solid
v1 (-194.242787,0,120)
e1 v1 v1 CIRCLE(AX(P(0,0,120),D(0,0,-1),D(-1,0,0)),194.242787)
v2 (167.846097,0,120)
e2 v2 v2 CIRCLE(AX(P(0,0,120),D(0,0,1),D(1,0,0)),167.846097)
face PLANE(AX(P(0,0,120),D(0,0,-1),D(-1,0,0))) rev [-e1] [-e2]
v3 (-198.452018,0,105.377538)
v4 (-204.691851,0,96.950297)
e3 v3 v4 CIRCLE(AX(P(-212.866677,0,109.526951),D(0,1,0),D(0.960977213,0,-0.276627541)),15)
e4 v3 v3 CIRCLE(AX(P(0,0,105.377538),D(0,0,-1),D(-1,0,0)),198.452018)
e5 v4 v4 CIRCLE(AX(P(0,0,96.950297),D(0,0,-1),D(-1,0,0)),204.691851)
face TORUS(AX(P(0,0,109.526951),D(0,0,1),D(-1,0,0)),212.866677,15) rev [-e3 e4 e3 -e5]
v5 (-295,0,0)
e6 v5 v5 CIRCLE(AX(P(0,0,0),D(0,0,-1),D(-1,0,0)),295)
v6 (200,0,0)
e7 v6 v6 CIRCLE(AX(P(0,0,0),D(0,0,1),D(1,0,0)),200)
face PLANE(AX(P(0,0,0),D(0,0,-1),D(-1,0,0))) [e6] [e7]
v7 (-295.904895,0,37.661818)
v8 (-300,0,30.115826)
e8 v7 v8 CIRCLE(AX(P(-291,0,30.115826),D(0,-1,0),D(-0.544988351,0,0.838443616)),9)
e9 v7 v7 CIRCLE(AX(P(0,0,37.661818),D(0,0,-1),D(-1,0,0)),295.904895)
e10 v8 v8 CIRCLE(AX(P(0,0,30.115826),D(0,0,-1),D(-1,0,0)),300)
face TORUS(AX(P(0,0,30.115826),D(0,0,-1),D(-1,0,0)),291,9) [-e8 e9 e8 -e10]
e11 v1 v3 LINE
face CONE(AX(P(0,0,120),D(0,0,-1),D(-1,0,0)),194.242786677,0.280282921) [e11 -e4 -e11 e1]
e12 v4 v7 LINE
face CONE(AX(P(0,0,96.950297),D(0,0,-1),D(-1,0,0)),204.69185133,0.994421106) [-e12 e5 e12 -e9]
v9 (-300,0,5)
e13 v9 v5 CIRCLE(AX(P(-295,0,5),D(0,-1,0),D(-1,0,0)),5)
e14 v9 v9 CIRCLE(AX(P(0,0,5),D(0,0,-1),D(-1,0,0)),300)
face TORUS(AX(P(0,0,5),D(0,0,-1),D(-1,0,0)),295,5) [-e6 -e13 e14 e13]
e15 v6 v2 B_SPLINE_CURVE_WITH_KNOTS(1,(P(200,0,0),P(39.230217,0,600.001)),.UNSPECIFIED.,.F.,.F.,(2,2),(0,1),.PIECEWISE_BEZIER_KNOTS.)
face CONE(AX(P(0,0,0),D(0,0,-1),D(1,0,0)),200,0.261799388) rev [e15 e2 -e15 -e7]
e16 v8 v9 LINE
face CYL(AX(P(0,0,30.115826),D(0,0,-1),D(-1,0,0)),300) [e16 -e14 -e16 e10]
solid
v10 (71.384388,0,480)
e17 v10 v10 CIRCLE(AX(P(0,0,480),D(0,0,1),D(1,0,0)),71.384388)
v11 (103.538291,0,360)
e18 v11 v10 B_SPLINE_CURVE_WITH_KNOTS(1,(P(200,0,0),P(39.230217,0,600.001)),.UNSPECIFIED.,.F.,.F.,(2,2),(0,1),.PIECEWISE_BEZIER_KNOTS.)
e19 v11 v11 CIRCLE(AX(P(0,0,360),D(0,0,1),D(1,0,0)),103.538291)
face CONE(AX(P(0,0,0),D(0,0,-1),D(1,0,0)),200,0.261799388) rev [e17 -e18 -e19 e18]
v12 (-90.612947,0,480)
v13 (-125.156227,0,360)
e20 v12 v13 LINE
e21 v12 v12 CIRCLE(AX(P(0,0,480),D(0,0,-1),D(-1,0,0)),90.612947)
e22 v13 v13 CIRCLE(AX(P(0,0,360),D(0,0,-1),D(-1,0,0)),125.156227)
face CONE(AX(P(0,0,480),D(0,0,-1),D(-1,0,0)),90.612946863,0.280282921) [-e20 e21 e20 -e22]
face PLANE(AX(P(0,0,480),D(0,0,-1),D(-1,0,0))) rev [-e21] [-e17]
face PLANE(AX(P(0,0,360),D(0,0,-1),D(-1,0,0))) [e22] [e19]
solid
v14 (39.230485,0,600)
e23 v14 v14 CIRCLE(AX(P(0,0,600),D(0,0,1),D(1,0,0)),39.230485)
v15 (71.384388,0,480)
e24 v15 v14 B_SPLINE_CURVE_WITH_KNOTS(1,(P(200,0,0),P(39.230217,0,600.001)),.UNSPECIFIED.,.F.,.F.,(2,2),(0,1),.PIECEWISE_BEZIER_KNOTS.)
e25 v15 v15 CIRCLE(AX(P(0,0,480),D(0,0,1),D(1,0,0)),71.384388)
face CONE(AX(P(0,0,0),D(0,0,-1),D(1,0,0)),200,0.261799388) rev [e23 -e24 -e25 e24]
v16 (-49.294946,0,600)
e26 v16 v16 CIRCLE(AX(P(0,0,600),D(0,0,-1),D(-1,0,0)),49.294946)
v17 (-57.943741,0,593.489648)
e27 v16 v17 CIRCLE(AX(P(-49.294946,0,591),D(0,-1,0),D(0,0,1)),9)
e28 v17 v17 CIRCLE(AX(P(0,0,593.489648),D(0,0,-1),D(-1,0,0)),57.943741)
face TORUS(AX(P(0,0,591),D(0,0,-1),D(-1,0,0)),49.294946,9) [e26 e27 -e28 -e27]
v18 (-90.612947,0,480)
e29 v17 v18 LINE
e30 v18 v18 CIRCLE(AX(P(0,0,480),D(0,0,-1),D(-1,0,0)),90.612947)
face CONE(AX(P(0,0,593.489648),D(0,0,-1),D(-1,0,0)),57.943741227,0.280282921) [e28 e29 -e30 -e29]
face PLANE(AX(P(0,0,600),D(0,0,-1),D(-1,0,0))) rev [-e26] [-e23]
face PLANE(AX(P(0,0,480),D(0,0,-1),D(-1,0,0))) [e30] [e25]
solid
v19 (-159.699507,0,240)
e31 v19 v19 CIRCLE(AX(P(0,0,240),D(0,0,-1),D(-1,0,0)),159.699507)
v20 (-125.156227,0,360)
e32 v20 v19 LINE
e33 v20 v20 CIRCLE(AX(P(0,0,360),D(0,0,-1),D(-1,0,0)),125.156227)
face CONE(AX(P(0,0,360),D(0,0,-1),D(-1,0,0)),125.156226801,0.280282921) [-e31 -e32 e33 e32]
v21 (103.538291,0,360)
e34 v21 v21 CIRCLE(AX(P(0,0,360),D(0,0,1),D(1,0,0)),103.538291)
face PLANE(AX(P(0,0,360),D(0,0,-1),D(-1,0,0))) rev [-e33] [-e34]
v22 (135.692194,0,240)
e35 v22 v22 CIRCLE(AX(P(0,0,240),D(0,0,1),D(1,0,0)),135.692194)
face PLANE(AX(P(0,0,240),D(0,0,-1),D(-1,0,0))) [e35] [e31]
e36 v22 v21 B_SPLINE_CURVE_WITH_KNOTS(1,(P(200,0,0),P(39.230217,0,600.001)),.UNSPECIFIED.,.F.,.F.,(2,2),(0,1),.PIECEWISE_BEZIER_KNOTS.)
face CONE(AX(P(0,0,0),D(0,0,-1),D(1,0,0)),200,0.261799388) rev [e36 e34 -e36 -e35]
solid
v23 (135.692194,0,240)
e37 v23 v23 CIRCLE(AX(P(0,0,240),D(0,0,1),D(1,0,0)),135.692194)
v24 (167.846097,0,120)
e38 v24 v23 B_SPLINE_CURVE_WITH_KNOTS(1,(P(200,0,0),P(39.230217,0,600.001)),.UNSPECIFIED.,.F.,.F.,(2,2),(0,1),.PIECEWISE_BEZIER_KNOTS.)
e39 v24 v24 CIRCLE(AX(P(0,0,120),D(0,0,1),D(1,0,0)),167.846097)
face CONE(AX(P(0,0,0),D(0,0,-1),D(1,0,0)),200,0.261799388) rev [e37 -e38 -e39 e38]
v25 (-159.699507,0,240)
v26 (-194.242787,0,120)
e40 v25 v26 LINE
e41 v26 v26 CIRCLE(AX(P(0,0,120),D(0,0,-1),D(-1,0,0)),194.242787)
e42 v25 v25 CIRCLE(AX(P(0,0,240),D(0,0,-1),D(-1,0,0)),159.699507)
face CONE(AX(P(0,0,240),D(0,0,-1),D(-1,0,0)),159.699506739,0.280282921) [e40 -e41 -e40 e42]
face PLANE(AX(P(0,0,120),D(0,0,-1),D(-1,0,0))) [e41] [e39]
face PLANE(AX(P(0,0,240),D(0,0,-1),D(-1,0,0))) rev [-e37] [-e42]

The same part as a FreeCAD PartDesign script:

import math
import FreeCAD as App
import Part
import Sketcher
from FreeCAD import Vector


def add_polygon(sketch, points):
    """Adds a closed chain of lines whose ends are joined by coincident constraints."""
    first, n = sketch.GeometryCount, len(points)
    for a, b in zip(points, points[1:] + points[:1]):
        sketch.addGeometry(Part.LineSegment(App.Vector(*a, 0), App.Vector(*b, 0)), False)
    for i in range(n):
        sketch.addConstraint(Sketcher.Constraint("Coincident", first + i, 2, first + (i + 1) % n, 1))

doc = App.newDocument("Part")
params = doc.addObject("Spreadsheet::Sheet", "Params")
for row, (alias, value) in enumerate([
    ("sketch1_radius", "9 mm"),
    ("sketch1_height", "120 mm"),
    ("revolution_angle", "360 deg"),
    ("sketch2_height", "120 mm"),
    ("revolution2_angle", "360 deg"),
    ("sketch3_height", "120 mm"),
    ("revolution3_angle", "360 deg"),
    ("sketch4_height", "120 mm"),
    ("revolution4_angle", "360 deg"),
    ("sketch5_radius", "15 mm"),
    ("sketch5_radius2", "9 mm"),
    ("sketch5_radius3", "5 mm"),
    ("sketch5_width", "295 mm"),
    ("sketch5_height", "120 mm"),
    ("revolution5_angle", "360 deg"),
    ("sketch6_diameter", "400 mm"),
    ("pad1_length", "600.001 mm"),
    ("pad1_taper", "-15 deg"),
], start=1):
    params.set(f"A{row}", alias)
    params.set(f"B{row}", "=" + value)
    params.setAlias(f"B{row}", alias)

body = doc.addObject("PartDesign::Body", "Body")

# Sketch on XZ plane
sketch1 = body.newObject("Sketcher::SketchObject", "Sketch")
sketch1.AttachmentSupport = (doc.getObject("XZ_Plane"), [""])
sketch1.MapMode = "FlatFace"
sketch1.addGeometry([
    Part.LineSegment(Vector(-90.612947, 480, 0), Vector(0, 480, 0)),  # 0
    Part.LineSegment(Vector(0, 480, 0), Vector(0, 600, 0)),  # 1
    Part.LineSegment(Vector(0, 600, 0), Vector(-49.294946, 600, 0)),  # 2
    Part.ArcOfCircle(Part.Circle(Vector(-49.294946, 591, 0), Vector(0, 0, 1), 9), math.radians(90), math.radians(163.940972)),  # 3
    Part.LineSegment(Vector(-57.943741, 593.489648, 0), Vector(-90.612947, 480, 0)),  # 4
], False)
sketch1.addConstraint([
    Sketcher.Constraint("Coincident", 0, 2, 1, 1),
    Sketcher.Constraint("Coincident", 1, 2, 2, 1),
    Sketcher.Constraint("Tangent", 2, 2, 3, 1),
    Sketcher.Constraint("Tangent", 3, 2, 4, 1),
    Sketcher.Constraint("Coincident", 4, 2, 0, 1),
    Sketcher.Constraint("Horizontal", 0),
    Sketcher.Constraint("Vertical", 1),
    Sketcher.Constraint("Horizontal", 2),
    Sketcher.Constraint("PointOnObject", 0, 2, -2),
    Sketcher.Constraint("Radius", 3, 9.0),
    Sketcher.Constraint("DistanceY", 1, 1, 1, 2, 120.0),
    Sketcher.Constraint("DistanceY", -1, 1, 3, 3, 591.0),
    Sketcher.Constraint("DistanceX", 4, 2, 3, 3, 41.318001),
    Sketcher.Constraint("DistanceX", 0, 1, 0, 2, 90.612947),
])
sketch1.setExpression("Constraints[9]", "Params.sketch1_radius")
sketch1.setExpression("Constraints[10]", "Params.sketch1_height")
revolution = body.newObject("PartDesign::Revolution", "Revolution")
revolution.Profile = sketch1
revolution.ReferenceAxis = (sketch1, ["V_Axis"])
revolution.setExpression("Angle", "Params.revolution_angle")
body2 = doc.addObject("PartDesign::Body", "Body001")

# Sketch on XZ plane
sketch2 = body2.newObject("Sketcher::SketchObject", "Sketch001")
sketch2.AttachmentSupport = (doc.getObject("XZ_Plane001"), [""])
sketch2.MapMode = "FlatFace"
add_polygon(sketch2, [(-125.156227, 360), (0, 360), (0, 480), (-90.612947, 480)])  # lines 0-3
sketch2.addConstraint([
    Sketcher.Constraint("Horizontal", 0),
    Sketcher.Constraint("Vertical", 1),
    Sketcher.Constraint("Horizontal", 2),
    Sketcher.Constraint("PointOnObject", 0, 2, -2),
    Sketcher.Constraint("DistanceY", 1, 1, 1, 2, 120.0),
    Sketcher.Constraint("DistanceY", -1, 1, 0, 2, 360.0),
    Sketcher.Constraint("Distance", 3, 124.872888),
    Sketcher.Constraint("DistanceX", 0, 1, 0, 2, 125.156227),
])
sketch2.setExpression("Constraints[8]", "Params.sketch2_height")
revolution2 = body2.newObject("PartDesign::Revolution", "Revolution001")
revolution2.Profile = sketch2
revolution2.ReferenceAxis = (sketch2, ["V_Axis"])
revolution2.setExpression("Angle", "Params.revolution2_angle")
body3 = doc.addObject("PartDesign::Body", "Body002")

# Sketch on XZ plane
sketch3 = body3.newObject("Sketcher::SketchObject", "Sketch002")
sketch3.AttachmentSupport = (doc.getObject("XZ_Plane002"), [""])
sketch3.MapMode = "FlatFace"
add_polygon(sketch3, [(-159.699507, 240), (0, 240), (0, 360), (-125.156227, 360)])  # lines 0-3
sketch3.addConstraint([
    Sketcher.Constraint("Horizontal", 0),
    Sketcher.Constraint("Vertical", 1),
    Sketcher.Constraint("Horizontal", 2),
    Sketcher.Constraint("PointOnObject", 0, 2, -2),
    Sketcher.Constraint("DistanceY", 1, 1, 1, 2, 120.0),
    Sketcher.Constraint("DistanceY", -1, 1, 0, 2, 240.0),
    Sketcher.Constraint("Distance", 3, 124.872888),
    Sketcher.Constraint("DistanceX", 0, 1, 0, 2, 159.699507),
])
sketch3.setExpression("Constraints[8]", "Params.sketch3_height")
revolution3 = body3.newObject("PartDesign::Revolution", "Revolution002")
revolution3.Profile = sketch3
revolution3.ReferenceAxis = (sketch3, ["V_Axis"])
revolution3.setExpression("Angle", "Params.revolution3_angle")
body4 = doc.addObject("PartDesign::Body", "Body003")

# Sketch on XZ plane
sketch4 = body4.newObject("Sketcher::SketchObject", "Sketch003")
sketch4.AttachmentSupport = (doc.getObject("XZ_Plane003"), [""])
sketch4.MapMode = "FlatFace"
add_polygon(sketch4, [(-194.242787, 120), (0, 120), (0, 240), (-159.699507, 240)])  # lines 0-3
sketch4.addConstraint([
    Sketcher.Constraint("Horizontal", 0),
    Sketcher.Constraint("Vertical", 1),
    Sketcher.Constraint("Horizontal", 2),
    Sketcher.Constraint("PointOnObject", 0, 2, -2),
    Sketcher.Constraint("DistanceY", 1, 1, 1, 2, 120.0),
    Sketcher.Constraint("DistanceY", -1, 1, 0, 2, 120.0),
    Sketcher.Constraint("Distance", 3, 124.872888),
    Sketcher.Constraint("DistanceX", 0, 1, 0, 2, 194.242787),
])
sketch4.setExpression("Constraints[8]", "Params.sketch4_height")
revolution4 = body4.newObject("PartDesign::Revolution", "Revolution003")
revolution4.Profile = sketch4
revolution4.ReferenceAxis = (sketch4, ["V_Axis"])
revolution4.setExpression("Angle", "Params.revolution4_angle")
body5 = doc.addObject("PartDesign::Body", "Body004")

# Sketch on XZ plane
sketch5 = body5.newObject("Sketcher::SketchObject", "Sketch004")
sketch5.AttachmentSupport = (doc.getObject("XZ_Plane004"), [""])
sketch5.MapMode = "FlatFace"
sketch5.addGeometry([
    Part.LineSegment(Vector(-295, 0, 0), Vector(0, 0, 0)),  # 0
    Part.LineSegment(Vector(0, 0, 0), Vector(0, 120, 0)),  # 1
    Part.LineSegment(Vector(0, 120, 0), Vector(-194.242787, 120, 0)),  # 2
    Part.LineSegment(Vector(-194.242787, 120, 0), Vector(-198.452018, 105.377538, 0)),  # 3
    Part.ArcOfCircle(Part.Circle(Vector(-212.866677, 109.526951, 0), Vector(0, 0, 1), 15), math.radians(-56.976132), math.radians(-16.059028)),  # 4
    Part.LineSegment(Vector(-204.691851, 96.950297, 0), Vector(-295.904895, 37.661818, 0)),  # 5
    Part.ArcOfCircle(Part.Circle(Vector(-291, 30.115826, 0), Vector(0, 0, 1), 9), math.radians(123.023868), math.radians(180)),  # 6
    Part.LineSegment(Vector(-300, 30.115826, 0), Vector(-300, 5, 0)),  # 7
    Part.ArcOfCircle(Part.Circle(Vector(-295, 5, 0), Vector(0, 0, 1), 5), math.radians(180), math.radians(270)),  # 8
], False)
sketch5.addConstraint([
    Sketcher.Constraint("Coincident", 0, 2, 1, 1),
    Sketcher.Constraint("Coincident", 1, 2, 2, 1),
    Sketcher.Constraint("Coincident", 2, 2, 3, 1),
    Sketcher.Constraint("Tangent", 3, 2, 4, 2),
    Sketcher.Constraint("Tangent", 4, 1, 5, 1),
    Sketcher.Constraint("Tangent", 5, 2, 6, 1),
    Sketcher.Constraint("Tangent", 6, 2, 7, 1),
    Sketcher.Constraint("Tangent", 7, 2, 8, 1),
    Sketcher.Constraint("Tangent", 8, 2, 0, 1),
    Sketcher.Constraint("Horizontal", 0),
    Sketcher.Constraint("Vertical", 1),
    Sketcher.Constraint("Horizontal", 2),
    Sketcher.Constraint("Vertical", 7),
    Sketcher.Constraint("Coincident", 0, 2, -1, 1),
    Sketcher.Constraint("Radius", 4, 15.0),
    Sketcher.Constraint("Radius", 6, 9.0),
    Sketcher.Constraint("Radius", 8, 5.0),
    Sketcher.Constraint("DistanceX", 0, 1, 0, 2, 295.0),
    Sketcher.Constraint("DistanceY", 1, 1, 1, 2, 120.0),
    Sketcher.Constraint("DistanceX", 2, 2, 2, 1, 194.242787),
    Sketcher.Constraint("DistanceY", 7, 2, 7, 1, 25.115826),
    Sketcher.Constraint("DistanceY", -1, 1, 4, 3, 109.526951),
    Sketcher.Constraint("DistanceX", 3, 2, -1, 1, 198.452018),
])
sketch5.setExpression("Constraints[14]", "Params.sketch5_radius")
sketch5.setExpression("Constraints[15]", "Params.sketch5_radius2")
sketch5.setExpression("Constraints[16]", "Params.sketch5_radius3")
sketch5.setExpression("Constraints[17]", "Params.sketch5_width")
sketch5.setExpression("Constraints[18]", "Params.sketch5_height")
revolution5 = body5.newObject("PartDesign::Revolution", "Revolution004")
revolution5.Profile = sketch5
revolution5.ReferenceAxis = (sketch5, ["V_Axis"])
revolution5.setExpression("Angle", "Params.revolution5_angle")
body6 = doc.addObject("PartDesign::Body", "Body005")

# Sketch on XY plane
sketch6 = body6.newObject("Sketcher::SketchObject", "Sketch005")
sketch6.AttachmentSupport = (doc.getObject("XY_Plane005"), [""])
sketch6.MapMode = "FlatFace"
sketch6.addGeometry(Part.Circle(Vector(0, 0, 0), Vector(0, 0, 1), 200), False)
sketch6.addConstraint([
    Sketcher.Constraint("Coincident", 0, 3, -1, 1),
    Sketcher.Constraint("Diameter", 0, 400.0),
])
sketch6.setExpression("Constraints[1]", "Params.sketch6_diameter")
pad1 = body6.newObject("PartDesign::Pad", "Pad")
pad1.Profile = sketch6
pad1.setExpression("Length", "Params.pad1_length")
pad1.setExpression("TaperAngle", "Params.pad1_taper")
doc.recompute()

body7 = doc.addObject("PartDesign::Body", "Body006")
body7.BaseFeature = body6
boolean = body.newObject("PartDesign::Boolean", "Boolean")
boolean.Type = "Cut"
boolean.addObjects([body7])
doc.recompute()

body8 = doc.addObject("PartDesign::Body", "Body007")
body8.BaseFeature = body6
boolean2 = body2.newObject("PartDesign::Boolean", "Boolean001")
boolean2.Type = "Cut"
boolean2.addObjects([body8])
doc.recompute()

body9 = doc.addObject("PartDesign::Body", "Body008")
body9.BaseFeature = body6
boolean3 = body3.newObject("PartDesign::Boolean", "Boolean002")
boolean3.Type = "Cut"
boolean3.addObjects([body9])
doc.recompute()

body10 = doc.addObject("PartDesign::Body", "Body009")
body10.BaseFeature = body6
boolean4 = body4.newObject("PartDesign::Boolean", "Boolean003")
boolean4.Type = "Cut"
boolean4.addObjects([body10])
doc.recompute()

boolean5 = body5.newObject("PartDesign::Boolean", "Boolean004")
boolean5.Type = "Cut"
boolean5.addObjects([body6])

doc.recompute()
